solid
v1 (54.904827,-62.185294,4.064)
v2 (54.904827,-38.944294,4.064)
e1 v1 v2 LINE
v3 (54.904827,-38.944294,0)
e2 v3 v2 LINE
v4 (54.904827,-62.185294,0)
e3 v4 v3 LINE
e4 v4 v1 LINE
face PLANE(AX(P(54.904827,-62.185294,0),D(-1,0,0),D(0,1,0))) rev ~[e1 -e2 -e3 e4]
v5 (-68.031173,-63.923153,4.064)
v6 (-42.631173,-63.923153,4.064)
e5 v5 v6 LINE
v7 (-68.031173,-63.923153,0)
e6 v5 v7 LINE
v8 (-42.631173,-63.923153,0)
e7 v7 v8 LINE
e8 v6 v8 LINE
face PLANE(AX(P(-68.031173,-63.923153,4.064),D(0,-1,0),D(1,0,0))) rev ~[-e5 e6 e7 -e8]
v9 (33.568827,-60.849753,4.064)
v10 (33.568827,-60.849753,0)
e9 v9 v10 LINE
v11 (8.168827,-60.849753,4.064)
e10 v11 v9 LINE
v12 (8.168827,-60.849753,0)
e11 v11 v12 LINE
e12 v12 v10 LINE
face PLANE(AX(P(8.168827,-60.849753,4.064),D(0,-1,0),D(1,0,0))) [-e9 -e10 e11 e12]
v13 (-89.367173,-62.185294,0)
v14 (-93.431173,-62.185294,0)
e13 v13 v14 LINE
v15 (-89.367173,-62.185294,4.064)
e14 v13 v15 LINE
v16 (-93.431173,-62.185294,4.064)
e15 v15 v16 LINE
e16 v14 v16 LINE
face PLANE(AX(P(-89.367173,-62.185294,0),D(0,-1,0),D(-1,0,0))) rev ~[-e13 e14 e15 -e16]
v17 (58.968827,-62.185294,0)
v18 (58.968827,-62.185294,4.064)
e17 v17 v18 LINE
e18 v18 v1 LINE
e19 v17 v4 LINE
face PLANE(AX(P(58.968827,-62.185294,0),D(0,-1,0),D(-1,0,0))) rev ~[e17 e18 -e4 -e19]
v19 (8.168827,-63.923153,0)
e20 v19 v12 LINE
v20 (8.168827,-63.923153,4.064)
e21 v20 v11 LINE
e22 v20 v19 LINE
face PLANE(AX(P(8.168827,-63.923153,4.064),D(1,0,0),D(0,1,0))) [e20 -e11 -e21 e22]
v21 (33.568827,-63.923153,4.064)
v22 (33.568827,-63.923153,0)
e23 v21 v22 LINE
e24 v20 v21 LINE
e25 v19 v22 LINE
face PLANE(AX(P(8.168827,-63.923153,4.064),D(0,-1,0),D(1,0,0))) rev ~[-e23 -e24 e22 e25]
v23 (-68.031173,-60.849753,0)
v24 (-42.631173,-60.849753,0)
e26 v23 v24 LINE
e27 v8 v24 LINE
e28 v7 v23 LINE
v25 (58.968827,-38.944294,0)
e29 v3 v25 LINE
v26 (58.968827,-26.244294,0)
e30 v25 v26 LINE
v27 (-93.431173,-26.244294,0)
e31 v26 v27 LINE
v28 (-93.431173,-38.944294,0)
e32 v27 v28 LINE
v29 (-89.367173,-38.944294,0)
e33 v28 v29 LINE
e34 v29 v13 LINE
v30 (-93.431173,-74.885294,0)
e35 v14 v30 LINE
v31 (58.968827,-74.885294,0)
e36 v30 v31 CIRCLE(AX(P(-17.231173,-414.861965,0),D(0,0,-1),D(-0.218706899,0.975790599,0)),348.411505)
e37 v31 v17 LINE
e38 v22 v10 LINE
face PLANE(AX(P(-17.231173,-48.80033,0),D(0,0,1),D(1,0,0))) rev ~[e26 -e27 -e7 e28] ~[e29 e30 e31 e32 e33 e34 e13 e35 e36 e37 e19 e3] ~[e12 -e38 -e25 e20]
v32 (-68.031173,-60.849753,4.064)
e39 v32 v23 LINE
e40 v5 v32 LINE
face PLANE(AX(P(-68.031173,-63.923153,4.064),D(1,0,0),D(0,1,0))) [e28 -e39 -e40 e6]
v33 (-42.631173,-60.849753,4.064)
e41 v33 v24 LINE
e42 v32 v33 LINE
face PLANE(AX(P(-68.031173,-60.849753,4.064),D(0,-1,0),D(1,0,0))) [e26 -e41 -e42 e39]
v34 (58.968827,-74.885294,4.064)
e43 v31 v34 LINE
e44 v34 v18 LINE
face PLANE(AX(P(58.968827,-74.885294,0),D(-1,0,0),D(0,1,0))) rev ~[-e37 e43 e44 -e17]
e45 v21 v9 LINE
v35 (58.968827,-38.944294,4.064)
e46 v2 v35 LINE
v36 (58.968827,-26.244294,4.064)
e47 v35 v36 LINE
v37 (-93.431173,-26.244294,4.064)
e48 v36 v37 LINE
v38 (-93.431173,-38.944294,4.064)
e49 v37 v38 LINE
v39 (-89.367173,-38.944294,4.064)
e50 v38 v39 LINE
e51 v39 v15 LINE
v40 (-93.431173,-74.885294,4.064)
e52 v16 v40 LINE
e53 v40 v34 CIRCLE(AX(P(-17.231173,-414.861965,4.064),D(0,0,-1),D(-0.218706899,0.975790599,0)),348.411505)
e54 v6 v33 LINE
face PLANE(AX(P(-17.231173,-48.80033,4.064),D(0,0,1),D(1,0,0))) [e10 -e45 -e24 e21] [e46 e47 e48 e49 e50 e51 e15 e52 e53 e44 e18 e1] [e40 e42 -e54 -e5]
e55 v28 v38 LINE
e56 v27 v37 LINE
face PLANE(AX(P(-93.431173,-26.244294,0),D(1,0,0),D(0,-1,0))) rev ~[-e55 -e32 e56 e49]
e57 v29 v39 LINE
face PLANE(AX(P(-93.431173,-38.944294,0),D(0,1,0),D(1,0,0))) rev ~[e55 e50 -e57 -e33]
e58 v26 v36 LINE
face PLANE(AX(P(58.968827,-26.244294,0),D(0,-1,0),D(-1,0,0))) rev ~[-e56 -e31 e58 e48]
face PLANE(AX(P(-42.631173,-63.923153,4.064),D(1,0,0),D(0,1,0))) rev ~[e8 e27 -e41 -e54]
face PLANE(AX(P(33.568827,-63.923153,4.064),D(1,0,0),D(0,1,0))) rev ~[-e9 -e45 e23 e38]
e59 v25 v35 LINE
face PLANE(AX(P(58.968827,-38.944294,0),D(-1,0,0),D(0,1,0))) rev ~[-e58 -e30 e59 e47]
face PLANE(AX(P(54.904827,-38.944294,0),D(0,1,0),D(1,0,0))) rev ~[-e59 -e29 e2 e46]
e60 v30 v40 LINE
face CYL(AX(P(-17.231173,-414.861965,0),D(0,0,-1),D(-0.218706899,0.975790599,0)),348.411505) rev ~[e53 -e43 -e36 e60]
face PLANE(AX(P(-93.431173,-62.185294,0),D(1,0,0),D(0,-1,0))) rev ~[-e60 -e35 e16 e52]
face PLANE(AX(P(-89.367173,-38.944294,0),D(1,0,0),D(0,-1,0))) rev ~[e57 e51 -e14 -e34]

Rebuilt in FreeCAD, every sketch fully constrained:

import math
import FreeCAD as App
import Part
import Sketcher
Q = App.Units.Quantity

doc = App.newDocument("Part")
body = doc.addObject("PartDesign::Body", "Body")

# Sketch on XY plane
sketch1 = body.newObject("Sketcher::SketchObject", "Sketch")
sketch1.AttachmentSupport = (doc.getObject("XY_Plane"), [""])
sketch1.MapMode = "FlatFace"
sketch1.addGeometry(Part.LineSegment(App.Vector(-93.4, -62.2, 0), App.Vector(-93.4, -74.9, 0)), False)
sketch1.addGeometry(Part.ArcOfCircle(Part.Circle(App.Vector(-17.2, -414.9, 0), App.Vector(0, 0, 1), 348.4), math.radians(77), math.radians(103)), False)
sketch1.addGeometry(Part.LineSegment(App.Vector(59, -74.9, 0), App.Vector(59, -62.2, 0)), False)
sketch1.addGeometry(Part.LineSegment(App.Vector(59, -62.2, 0), App.Vector(54.9, -62.2, 0)), False)
sketch1.addGeometry(Part.LineSegment(App.Vector(54.9, -62.2, 0), App.Vector(54.9, -38.9, 0)), False)
sketch1.addGeometry(Part.LineSegment(App.Vector(54.9, -38.9, 0), App.Vector(59, -38.9, 0)), False)
sketch1.addGeometry(Part.LineSegment(App.Vector(59, -38.9, 0), App.Vector(59, -26.2, 0)), False)
sketch1.addGeometry(Part.LineSegment(App.Vector(59, -26.2, 0), App.Vector(-93.4, -26.2, 0)), False)
sketch1.addGeometry(Part.LineSegment(App.Vector(-93.4, -26.2, 0), App.Vector(-93.4, -38.9, 0)), False)
sketch1.addGeometry(Part.LineSegment(App.Vector(-93.4, -38.9, 0), App.Vector(-89.4, -38.9, 0)), False)
sketch1.addGeometry(Part.LineSegment(App.Vector(-89.4, -38.9, 0), App.Vector(-89.4, -62.2, 0)), False)
sketch1.addGeometry(Part.LineSegment(App.Vector(-89.4, -62.2, 0), App.Vector(-93.4, -62.2, 0)), False)
sketch1.addConstraint(Sketcher.Constraint("Coincident", 0, 2, 1, 2))
sketch1.addConstraint(Sketcher.Constraint("Coincident", 1, 1, 2, 1))
sketch1.addConstraint(Sketcher.Constraint("Coincident", 2, 2, 3, 1))
sketch1.addConstraint(Sketcher.Constraint("Coincident", 3, 2, 4, 1))
sketch1.addConstraint(Sketcher.Constraint("Coincident", 4, 2, 5, 1))
sketch1.addConstraint(Sketcher.Constraint("Coincident", 5, 2, 6, 1))
sketch1.addConstraint(Sketcher.Constraint("Coincident", 6, 2, 7, 1))
sketch1.addConstraint(Sketcher.Constraint("Coincident", 7, 2, 8, 1))
sketch1.addConstraint(Sketcher.Constraint("Coincident", 8, 2, 9, 1))
sketch1.addConstraint(Sketcher.Constraint("Coincident", 9, 2, 10, 1))
sketch1.addConstraint(Sketcher.Constraint("Coincident", 10, 2, 11, 1))
sketch1.addConstraint(Sketcher.Constraint("Coincident", 11, 2, 0, 1))
sketch1.addConstraint(Sketcher.Constraint("Vertical", 0))
sketch1.addConstraint(Sketcher.Constraint("Vertical", 2))
sketch1.addConstraint(Sketcher.Constraint("Horizontal", 3))
sketch1.addConstraint(Sketcher.Constraint("Vertical", 4))
sketch1.addConstraint(Sketcher.Constraint("Horizontal", 5))
sketch1.addConstraint(Sketcher.Constraint("Vertical", 6))
sketch1.addConstraint(Sketcher.Constraint("Horizontal", 7))
sketch1.addConstraint(Sketcher.Constraint("Vertical", 8))
sketch1.addConstraint(Sketcher.Constraint("Horizontal", 9))
sketch1.addConstraint(Sketcher.Constraint("Vertical", 10))
sketch1.addConstraint(Sketcher.Constraint("Horizontal", 11))
sketch1.addConstraint(Sketcher.Constraint("Horizontal", 0, 2, 1, 1))
sketch1.addConstraint(Sketcher.Constraint("Horizontal", 5, 2, 8, 2))
sketch1.addConstraint(Sketcher.Constraint("Horizontal", 3, 2, 10, 2))
sketch1.addConstraint(Sketcher.Constraint("Vertical", 2, 2, 5, 2))
sketch1.addConstraint(Sketcher.Constraint("Vertical", 0, 2, 7, 2))
sketch1.addConstraint(Sketcher.Constraint("Equal", 5, 9))
sketch1.addConstraint(Sketcher.Constraint("Equal", 2, 6))
sketch1.addConstraint(Sketcher.Constraint("DistanceX", 7, 2, 7, 1, Q("6 in")))
sketch1.addConstraint(Sketcher.Constraint("DistanceY", 0, 2, 0, 1, Q("0.5 in")))
sketch1.addConstraint(Sketcher.Constraint("DistanceX", 3, 2, 3, 1, Q("0.16 in")))
sketch1.addConstraint(Sketcher.Constraint("DistanceY", 4, 1, 4, 2, Q("0.915 in")))
sketch1.addConstraint(Sketcher.Constraint("Radius", 1, Q("348.411505 mm")))
sketch1.addConstraint(Sketcher.Constraint("DistanceX", 1, 3, -1, 1, Q("17.231173 mm")))
sketch1.addConstraint(Sketcher.Constraint("DistanceY", 1, 3, -1, 1, Q("414.861965 mm")))
pad1 = body.newObject("PartDesign::Pad", "Pad")
pad1.Profile = sketch1
pad1.Length = Q("0.16 in")

# Sketch on XY plane
sketch2 = body.newObject("Sketcher::SketchObject", "Sketch001")
sketch2.AttachmentSupport = (doc.getObject("XY_Plane"), [""])
sketch2.MapMode = "FlatFace"
sketch2.AttachmentOffset = App.Placement(App.Vector(0, 0, 0.16 * 25.4), App.Rotation())
sketch2.addGeometry(Part.LineSegment(App.Vector(8.2, -60.8, 0), App.Vector(8.2, -63.9, 0)), False)
sketch2.addGeometry(Part.LineSegment(App.Vector(8.2, -63.9, 0), App.Vector(33.6, -63.9, 0)), False)
sketch2.addGeometry(Part.LineSegment(App.Vector(33.6, -63.9, 0), App.Vector(33.6, -60.8, 0)), False)
sketch2.addGeometry(Part.LineSegment(App.Vector(33.6, -60.8, 0), App.Vector(8.2, -60.8, 0)), False)
sketch2.addGeometry(Part.LineSegment(App.Vector(-68, -60.8, 0), App.Vector(-68, -63.9, 0)), False)
sketch2.addGeometry(Part.LineSegment(App.Vector(-68, -63.9, 0), App.Vector(-42.6, -63.9, 0)), False)
sketch2.addGeometry(Part.LineSegment(App.Vector(-42.6, -63.9, 0), App.Vector(-42.6, -60.8, 0)), False)
sketch2.addGeometry(Part.LineSegment(App.Vector(-42.6, -60.8, 0), App.Vector(-68, -60.8, 0)), False)
sketch2.addConstraint(Sketcher.Constraint("Coincident", 0, 2, 1, 1))
sketch2.addConstraint(Sketcher.Constraint("Coincident", 1, 2, 2, 1))
sketch2.addConstraint(Sketcher.Constraint("Coincident", 2, 2, 3, 1))
sketch2.addConstraint(Sketcher.Constraint("Coincident", 3, 2, 0, 1))
sketch2.addConstraint(Sketcher.Constraint("Coincident", 4, 2, 5, 1))
sketch2.addConstraint(Sketcher.Constraint("Coincident", 5, 2, 6, 1))
sketch2.addConstraint(Sketcher.Constraint("Coincident", 6, 2, 7, 1))
sketch2.addConstraint(Sketcher.Constraint("Coincident", 7, 2, 4, 1))
sketch2.addConstraint(Sketcher.Constraint("Vertical", 0))
sketch2.addConstraint(Sketcher.Constraint("Horizontal", 1))
sketch2.addConstraint(Sketcher.Constraint("Vertical", 2))
sketch2.addConstraint(Sketcher.Constraint("Horizontal", 3))
sketch2.addConstraint(Sketcher.Constraint("Vertical", 4))
sketch2.addConstraint(Sketcher.Constraint("Horizontal", 5))
sketch2.addConstraint(Sketcher.Constraint("Vertical", 6))
sketch2.addConstraint(Sketcher.Constraint("Horizontal", 7))
sketch2.addConstraint(Sketcher.Constraint("Horizontal", 1, 2, 4, 2))
sketch2.addConstraint(Sketcher.Constraint("Horizontal", 3, 2, 6, 2))
sketch2.addConstraint(Sketcher.Constraint("Equal", 3, 5))
sketch2.addConstraint(Sketcher.Constraint("DistanceX", 1, 1, 1, 2, Q("1 in")))
sketch2.addConstraint(Sketcher.Constraint("DistanceX", 4, 2, 0, 2, Q("3 in")))
sketch2.addConstraint(Sketcher.Constraint("DistanceY", 0, 2, 0, 1, Q("0.121 in")))
sketch2.addConstraint(Sketcher.Constraint("DistanceX", -1, 1, 0, 2, Q("8.168827 mm")))
sketch2.addConstraint(Sketcher.Constraint("DistanceY", 0, 2, -1, 1, Q("63.923153 mm")))
pocket1 = body.newObject("PartDesign::Pocket", "Pocket")
pocket1.Profile = sketch2
pocket1.Length = Q("1 in")

doc.recompute()
